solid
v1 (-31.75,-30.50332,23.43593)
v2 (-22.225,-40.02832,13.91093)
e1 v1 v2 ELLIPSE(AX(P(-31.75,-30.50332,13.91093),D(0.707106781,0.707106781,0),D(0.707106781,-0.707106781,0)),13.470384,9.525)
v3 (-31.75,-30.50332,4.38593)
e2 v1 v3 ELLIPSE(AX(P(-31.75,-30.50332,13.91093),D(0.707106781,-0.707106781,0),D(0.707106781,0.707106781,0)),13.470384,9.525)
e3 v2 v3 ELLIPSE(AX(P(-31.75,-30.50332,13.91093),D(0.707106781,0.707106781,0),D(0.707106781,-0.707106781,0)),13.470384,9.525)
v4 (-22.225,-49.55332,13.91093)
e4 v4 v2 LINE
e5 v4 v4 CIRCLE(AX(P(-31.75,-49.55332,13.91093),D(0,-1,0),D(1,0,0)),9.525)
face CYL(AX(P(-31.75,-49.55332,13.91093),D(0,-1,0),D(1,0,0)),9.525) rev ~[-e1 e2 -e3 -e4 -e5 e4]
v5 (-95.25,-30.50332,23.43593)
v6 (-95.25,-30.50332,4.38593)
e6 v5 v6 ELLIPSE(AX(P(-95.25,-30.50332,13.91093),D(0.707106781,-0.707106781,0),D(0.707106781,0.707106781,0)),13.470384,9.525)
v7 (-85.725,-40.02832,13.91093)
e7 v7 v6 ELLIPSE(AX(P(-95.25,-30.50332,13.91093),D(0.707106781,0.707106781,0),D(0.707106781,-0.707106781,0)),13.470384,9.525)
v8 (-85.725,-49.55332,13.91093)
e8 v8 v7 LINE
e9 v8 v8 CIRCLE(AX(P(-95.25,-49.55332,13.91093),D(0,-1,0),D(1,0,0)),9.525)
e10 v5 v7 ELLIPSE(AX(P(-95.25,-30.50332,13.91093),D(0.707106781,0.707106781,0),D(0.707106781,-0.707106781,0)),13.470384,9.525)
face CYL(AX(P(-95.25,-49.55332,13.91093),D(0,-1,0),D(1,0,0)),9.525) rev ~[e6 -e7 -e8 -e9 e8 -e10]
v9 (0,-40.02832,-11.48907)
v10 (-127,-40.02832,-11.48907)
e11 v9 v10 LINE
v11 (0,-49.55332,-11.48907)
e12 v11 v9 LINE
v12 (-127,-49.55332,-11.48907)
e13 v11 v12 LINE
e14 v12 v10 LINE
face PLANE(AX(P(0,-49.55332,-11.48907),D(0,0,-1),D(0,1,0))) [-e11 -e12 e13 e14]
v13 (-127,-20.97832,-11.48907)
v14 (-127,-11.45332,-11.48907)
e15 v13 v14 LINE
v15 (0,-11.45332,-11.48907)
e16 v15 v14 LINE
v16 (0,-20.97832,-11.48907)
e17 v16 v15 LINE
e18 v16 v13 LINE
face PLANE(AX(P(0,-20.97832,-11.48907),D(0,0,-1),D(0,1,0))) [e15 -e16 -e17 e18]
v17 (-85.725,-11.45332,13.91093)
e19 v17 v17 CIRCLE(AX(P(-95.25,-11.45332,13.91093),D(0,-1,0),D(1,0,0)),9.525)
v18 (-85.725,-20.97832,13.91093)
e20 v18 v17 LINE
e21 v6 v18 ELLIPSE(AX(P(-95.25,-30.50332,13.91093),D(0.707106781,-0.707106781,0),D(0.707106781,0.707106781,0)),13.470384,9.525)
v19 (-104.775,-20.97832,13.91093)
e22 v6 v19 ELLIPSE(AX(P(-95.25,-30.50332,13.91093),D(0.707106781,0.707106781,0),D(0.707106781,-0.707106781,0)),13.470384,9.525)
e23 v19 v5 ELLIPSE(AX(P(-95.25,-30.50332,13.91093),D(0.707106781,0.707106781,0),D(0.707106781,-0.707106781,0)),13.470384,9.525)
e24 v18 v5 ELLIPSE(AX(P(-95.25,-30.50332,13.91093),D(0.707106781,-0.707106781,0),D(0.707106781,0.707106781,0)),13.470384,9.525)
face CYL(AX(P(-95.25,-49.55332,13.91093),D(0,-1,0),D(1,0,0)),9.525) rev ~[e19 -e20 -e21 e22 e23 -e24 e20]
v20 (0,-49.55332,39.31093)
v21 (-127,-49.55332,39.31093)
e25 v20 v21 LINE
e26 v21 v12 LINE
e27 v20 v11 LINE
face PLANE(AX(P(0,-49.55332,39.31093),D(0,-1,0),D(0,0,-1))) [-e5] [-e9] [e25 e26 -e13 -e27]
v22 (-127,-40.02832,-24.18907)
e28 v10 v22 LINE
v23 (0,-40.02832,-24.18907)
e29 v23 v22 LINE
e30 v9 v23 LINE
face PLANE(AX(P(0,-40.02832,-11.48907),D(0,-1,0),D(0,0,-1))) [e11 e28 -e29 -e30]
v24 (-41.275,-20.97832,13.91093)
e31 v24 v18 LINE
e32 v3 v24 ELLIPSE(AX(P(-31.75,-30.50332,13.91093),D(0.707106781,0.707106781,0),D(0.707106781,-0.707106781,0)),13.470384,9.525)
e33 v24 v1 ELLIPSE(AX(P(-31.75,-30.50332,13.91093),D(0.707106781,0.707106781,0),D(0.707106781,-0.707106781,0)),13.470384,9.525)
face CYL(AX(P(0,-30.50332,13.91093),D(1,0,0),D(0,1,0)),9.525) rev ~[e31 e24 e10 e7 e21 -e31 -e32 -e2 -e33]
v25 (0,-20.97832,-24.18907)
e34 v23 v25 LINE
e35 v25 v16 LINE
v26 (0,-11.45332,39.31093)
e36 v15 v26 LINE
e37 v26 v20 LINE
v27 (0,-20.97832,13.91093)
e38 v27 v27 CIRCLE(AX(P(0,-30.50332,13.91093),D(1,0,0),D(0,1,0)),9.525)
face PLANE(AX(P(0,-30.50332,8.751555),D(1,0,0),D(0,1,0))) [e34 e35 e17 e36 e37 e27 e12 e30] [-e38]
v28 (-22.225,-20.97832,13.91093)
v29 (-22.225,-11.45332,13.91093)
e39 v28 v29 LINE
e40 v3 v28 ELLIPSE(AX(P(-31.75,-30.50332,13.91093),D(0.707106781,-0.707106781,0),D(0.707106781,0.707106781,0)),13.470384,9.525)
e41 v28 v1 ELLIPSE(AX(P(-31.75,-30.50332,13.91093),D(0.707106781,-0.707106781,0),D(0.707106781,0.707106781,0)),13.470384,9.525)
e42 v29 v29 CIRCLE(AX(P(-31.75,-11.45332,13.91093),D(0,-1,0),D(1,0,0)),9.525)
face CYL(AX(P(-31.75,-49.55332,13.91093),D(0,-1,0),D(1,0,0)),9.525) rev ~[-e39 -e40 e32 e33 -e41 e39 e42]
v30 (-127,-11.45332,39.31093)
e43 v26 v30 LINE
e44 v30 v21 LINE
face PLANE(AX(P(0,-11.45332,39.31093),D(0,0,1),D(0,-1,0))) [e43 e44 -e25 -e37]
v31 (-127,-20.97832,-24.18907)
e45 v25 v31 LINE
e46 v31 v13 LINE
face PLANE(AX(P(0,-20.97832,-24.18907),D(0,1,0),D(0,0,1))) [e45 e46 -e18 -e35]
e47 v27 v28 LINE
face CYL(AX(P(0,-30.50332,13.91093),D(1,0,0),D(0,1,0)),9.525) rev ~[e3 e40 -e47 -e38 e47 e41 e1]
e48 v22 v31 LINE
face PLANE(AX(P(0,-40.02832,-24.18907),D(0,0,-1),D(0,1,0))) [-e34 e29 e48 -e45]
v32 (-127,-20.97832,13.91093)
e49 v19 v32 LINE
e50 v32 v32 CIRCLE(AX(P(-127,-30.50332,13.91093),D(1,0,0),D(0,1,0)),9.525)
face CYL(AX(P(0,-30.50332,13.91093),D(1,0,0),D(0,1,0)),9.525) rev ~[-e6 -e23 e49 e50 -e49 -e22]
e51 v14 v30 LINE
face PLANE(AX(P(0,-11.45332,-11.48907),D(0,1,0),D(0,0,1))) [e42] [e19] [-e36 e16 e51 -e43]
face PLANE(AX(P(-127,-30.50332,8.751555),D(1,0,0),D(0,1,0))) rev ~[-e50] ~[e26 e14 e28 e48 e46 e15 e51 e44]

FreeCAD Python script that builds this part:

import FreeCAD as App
import Part
import Sketcher

V = App.Vector
Q = App.Units.Quantity


def add_polygon(sketch, points):
    """Adds a closed chain of lines whose ends are joined by coincident constraints."""
    first, n = sketch.GeometryCount, len(points)
    for a, b in zip(points, points[1:] + points[:1]):
        sketch.addGeometry(Part.LineSegment(App.Vector(*a, 0), App.Vector(*b, 0)), False)
    for i in range(n):
        sketch.addConstraint(Sketcher.Constraint("Coincident", first + i, 2, first + (i + 1) % n, 1))

doc = App.newDocument("Part")
body = doc.addObject("PartDesign::Body", "Body")

# Sketch on YZ plane
sketch1 = doc.addObject("Sketcher::SketchObject", "Sketch")
body.addObject(sketch1)
sketch1.AttachmentSupport = (doc.YZ_Plane, [""])
sketch1.MapMode = "FlatFace"
add_polygon(sketch1, [(-21, -24), (-21, -11), (-11, -11), (-11, 39), (-50, 39), (-50, -11), (-40, -11), (-40, -24)])  # lines 0-7
sketch1.addConstraint([
    Sketcher.Constraint("Vertical", 0),
    Sketcher.Constraint("Horizontal", 1),
    Sketcher.Constraint("Vertical", 2),
    Sketcher.Constraint("Horizontal", 3),
    Sketcher.Constraint("Vertical", 4),
    Sketcher.Constraint("Horizontal", 5),
    Sketcher.Constraint("Vertical", 6),
    Sketcher.Constraint("Horizontal", 7),
    Sketcher.Constraint("Horizontal", 1, 2, 4, 2),
    Sketcher.Constraint("Equal", 1, 5),
    Sketcher.Constraint("DistanceY", 2, 1, 2, 2, Q("2 in")),
    Sketcher.Constraint("DistanceX", 3, 2, 3, 1, Q("1.5 in")),
    Sketcher.Constraint("DistanceY", 0, 1, 0, 2, Q("0.5 in")),
    Sketcher.Constraint("DistanceX", 7, 1, 7, 2, Q("0.75 in")),
    Sketcher.Constraint("DistanceX", 0, 2, -1, 1, Q("20.97832 mm")),
    Sketcher.Constraint("DistanceY", 0, 2, -1, 1, Q("11.48907 mm")),
])
pad1 = doc.addObject("PartDesign::Pad", "Pad")
body.addObject(pad1)
pad1.Profile = sketch1
pad1.Length = Q("5 in")
pad1.Reversed = True

# Sketch on YZ plane
sketch2 = doc.addObject("Sketcher::SketchObject", "Sketch001")
body.addObject(sketch2)
sketch2.AttachmentSupport = (doc.YZ_Plane, [""])
sketch2.MapMode = "FlatFace"
sketch2.addGeometry(Part.Circle(V(-31, 14, 0), V(0, 0, 1), 10), False)
sketch2.addConstraint([
    Sketcher.Constraint("Diameter", 0, Q("0.75 in")),
    Sketcher.Constraint("DistanceX", 0, 3, -1, 1, Q("30.50332 mm")),
    Sketcher.Constraint("DistanceY", -1, 1, 0, 3, Q("13.91093 mm")),
])
pocket1 = doc.addObject("PartDesign::Pocket", "Pocket")
body.addObject(pocket1)
pocket1.Profile = sketch2
pocket1.Type = "ThroughAll"

# Sketch on XZ plane
sketch3 = doc.addObject("Sketcher::SketchObject", "Sketch002")
body.addObject(sketch3)
sketch3.AttachmentSupport = (doc.XZ_Plane, [""])
sketch3.MapMode = "FlatFace"
sketch3.AttachmentOffset = App.Placement(V(0, 0, 49.55332), App.Rotation())
sketch3.addGeometry([
    Part.Circle(V(-95, 14, 0), V(0, 0, 1), 10),
    Part.Circle(V(-32, 14, 0), V(0, 0, 1), 10),
], False)
sketch3.addConstraint([
    Sketcher.Constraint("Equal", 0, 1),
    Sketcher.Constraint("Horizontal", 0, 3, 1, 3),
    Sketcher.Constraint("Diameter", 0, Q("0.75 in")),
    Sketcher.Constraint("DistanceX", 0, 3, 1, 3, Q("2.5 in")),
    Sketcher.Constraint("DistanceX", 0, 3, -1, 1, Q("3.75 in")),
    Sketcher.Constraint("DistanceY", -1, 1, 0, 3, Q("13.91093 mm")),
])
pocket2 = doc.addObject("PartDesign::Pocket", "Pocket001")
body.addObject(pocket2)
pocket2.Profile = sketch3
pocket2.Type = "ThroughAll"

doc.recompute()
